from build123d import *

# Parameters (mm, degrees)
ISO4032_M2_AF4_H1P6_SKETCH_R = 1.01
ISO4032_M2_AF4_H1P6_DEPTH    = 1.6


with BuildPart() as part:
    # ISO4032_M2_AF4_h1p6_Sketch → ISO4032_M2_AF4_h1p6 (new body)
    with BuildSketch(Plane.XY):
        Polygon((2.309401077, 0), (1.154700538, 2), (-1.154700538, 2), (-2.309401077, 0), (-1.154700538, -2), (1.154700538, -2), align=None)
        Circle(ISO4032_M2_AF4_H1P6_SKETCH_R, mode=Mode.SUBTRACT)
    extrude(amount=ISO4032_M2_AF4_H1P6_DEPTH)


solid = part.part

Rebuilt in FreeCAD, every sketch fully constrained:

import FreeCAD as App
import Part
import Sketcher
from FreeCAD import Vector
Q = App.Units.Quantity

doc = App.newDocument("Part")
body = doc.addObject("PartDesign::Body", "Body")

sketch1 = body.newObject("Sketcher::SketchObject", "Sketch")
sketch1.AttachmentSupport = (doc.getObject("XY_Plane"), [""])
sketch1.MapMode = "FlatFace"
sketch1.addGeometry(Part.LineSegment(Vector(2.309401, 0, 0), Vector(1.154701, 2, 0)), False)
sketch1.addGeometry(Part.LineSegment(Vector(1.154701, 2, 0), Vector(-1.154701, 2, 0)), False)
sketch1.addGeometry(Part.LineSegment(Vector(-1.154701, 2, 0), Vector(-2.309401, 0, 0)), False)
sketch1.addGeometry(Part.LineSegment(Vector(-2.309401, 0, 0), Vector(-1.154701, -2, 0)), False)
sketch1.addGeometry(Part.LineSegment(Vector(-1.154701, -2, 0), Vector(1.154701, -2, 0)), False)
sketch1.addGeometry(Part.LineSegment(Vector(1.154701, -2, 0), Vector(2.309401, 0, 0)), False)
sketch1.addGeometry(Part.Circle(Vector(0, 0, 0), Vector(0, 0, 1), 1.01), False)
sketch1.addConstraint(Sketcher.Constraint("Coincident", 0, 2, 1, 1))
sketch1.addConstraint(Sketcher.Constraint("Coincident", 1, 2, 2, 1))
sketch1.addConstraint(Sketcher.Constraint("Coincident", 2, 2, 3, 1))
sketch1.addConstraint(Sketcher.Constraint("Coincident", 3, 2, 4, 1))
sketch1.addConstraint(Sketcher.Constraint("Coincident", 4, 2, 5, 1))
sketch1.addConstraint(Sketcher.Constraint("Coincident", 5, 2, 0, 1))
sketch1.addConstraint(Sketcher.Constraint("Horizontal", 1))
sketch1.addConstraint(Sketcher.Constraint("Horizontal", 4))
sketch1.addConstraint(Sketcher.Constraint("Coincident", 6, 3, -1, 1))
sketch1.addConstraint(Sketcher.Constraint("Symmetric", 0, 2, 3, 2, -1, 1))
sketch1.addConstraint(Sketcher.Constraint("Symmetric", 2, 2, 5, 2, -1, 1))
sketch1.addConstraint(Sketcher.Constraint("PointOnObject", 2, 2, -1))
sketch1.addConstraint(Sketcher.Constraint("Parallel", 2, 5))
sketch1.addConstraint(Sketcher.Constraint("Vertical", 1, 2, 3, 2))
sketch1.addConstraint(Sketcher.Constraint("Diameter", 6, 2.02))
sketch1.addConstraint(Sketcher.Constraint("Angle", 0, Q("120 deg")))
sketch1.addConstraint(Sketcher.Constraint("DistanceY", -1, 1, 0, 2, 2.0))
sketch1.addConstraint(Sketcher.Constraint("DistanceX", 1, 2, 1, 1, 2.309401))
pad1 = body.newObject("PartDesign::Pad", "Pad")
pad1.Profile = sketch1
pad1.Length = 1.6

doc.recompute()
